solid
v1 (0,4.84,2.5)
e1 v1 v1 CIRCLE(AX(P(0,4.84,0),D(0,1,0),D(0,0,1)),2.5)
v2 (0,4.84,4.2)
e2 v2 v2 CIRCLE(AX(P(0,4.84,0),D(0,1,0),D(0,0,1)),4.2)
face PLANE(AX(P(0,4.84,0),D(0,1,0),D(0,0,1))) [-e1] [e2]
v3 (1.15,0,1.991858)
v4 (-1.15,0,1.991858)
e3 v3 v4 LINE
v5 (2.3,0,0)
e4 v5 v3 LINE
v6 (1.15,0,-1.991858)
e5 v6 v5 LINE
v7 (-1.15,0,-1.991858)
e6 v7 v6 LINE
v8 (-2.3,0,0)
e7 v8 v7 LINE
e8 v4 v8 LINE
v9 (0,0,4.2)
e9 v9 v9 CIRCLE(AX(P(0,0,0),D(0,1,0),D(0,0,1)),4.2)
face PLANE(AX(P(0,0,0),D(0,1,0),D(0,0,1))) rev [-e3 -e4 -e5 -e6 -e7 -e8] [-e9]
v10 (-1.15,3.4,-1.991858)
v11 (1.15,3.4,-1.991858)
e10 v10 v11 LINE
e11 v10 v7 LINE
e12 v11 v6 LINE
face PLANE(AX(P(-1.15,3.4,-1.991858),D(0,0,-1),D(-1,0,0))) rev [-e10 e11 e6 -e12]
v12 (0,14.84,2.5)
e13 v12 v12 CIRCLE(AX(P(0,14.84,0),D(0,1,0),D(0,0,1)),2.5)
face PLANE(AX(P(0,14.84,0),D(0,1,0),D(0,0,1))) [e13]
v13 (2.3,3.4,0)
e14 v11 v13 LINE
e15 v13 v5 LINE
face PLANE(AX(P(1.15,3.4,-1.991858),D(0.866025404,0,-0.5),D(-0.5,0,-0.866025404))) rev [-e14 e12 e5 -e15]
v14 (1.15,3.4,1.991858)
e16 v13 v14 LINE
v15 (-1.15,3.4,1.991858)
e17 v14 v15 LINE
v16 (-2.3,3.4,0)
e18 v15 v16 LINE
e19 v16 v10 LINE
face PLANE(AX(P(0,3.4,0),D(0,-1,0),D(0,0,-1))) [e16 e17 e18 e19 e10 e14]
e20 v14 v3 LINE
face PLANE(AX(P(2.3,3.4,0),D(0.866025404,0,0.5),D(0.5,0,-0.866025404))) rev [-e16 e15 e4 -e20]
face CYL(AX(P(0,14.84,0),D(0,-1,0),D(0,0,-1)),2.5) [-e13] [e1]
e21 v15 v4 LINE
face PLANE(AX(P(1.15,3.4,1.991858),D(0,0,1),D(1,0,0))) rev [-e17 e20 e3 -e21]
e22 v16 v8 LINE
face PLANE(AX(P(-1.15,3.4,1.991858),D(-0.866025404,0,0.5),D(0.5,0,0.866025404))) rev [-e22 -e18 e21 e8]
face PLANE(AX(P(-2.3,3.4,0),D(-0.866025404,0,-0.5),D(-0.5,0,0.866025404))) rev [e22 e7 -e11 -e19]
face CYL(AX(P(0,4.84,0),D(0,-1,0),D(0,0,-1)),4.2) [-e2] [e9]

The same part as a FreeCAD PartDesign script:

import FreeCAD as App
import Part
import Sketcher
Q = App.Units.Quantity

doc = App.newDocument("Part")
body = doc.addObject("PartDesign::Body", "Body")

sketch1 = doc.addObject("Sketcher::SketchObject", "Sketch")
body.addObject(sketch1)
sketch1.AttachmentSupport = (doc.XZ_Plane, [""])
sketch1.MapMode = "FlatFace"
sketch1.addGeometry(Part.Circle(App.Vector(0, 0, 0), App.Vector(0, 0, 1), 4.2), False)
sketch1.addConstraint([
    Sketcher.Constraint("Coincident", 0, 3, -1, 1),
    Sketcher.Constraint("Diameter", 0, 8.4),
])
pad1 = doc.addObject("PartDesign::Pad", "Pad")
body.addObject(pad1)
pad1.Profile = sketch1
pad1.Length = 4.84
pad1.Reversed = True

sketch2 = doc.addObject("Sketcher::SketchObject", "Sketch001")
body.addObject(sketch2)
sketch2.AttachmentSupport = (doc.XZ_Plane, [""])
sketch2.MapMode = "FlatFace"
sketch2.AttachmentOffset = App.Placement(App.Vector(0, 0, -4.84), App.Rotation())
sketch2.addGeometry(Part.Circle(App.Vector(0, 0, 0), App.Vector(0, 0, 1), 2.5), False)
sketch2.addConstraint([
    Sketcher.Constraint("Coincident", 0, 3, -1, 1),
    Sketcher.Constraint("Diameter", 0, 5.0),
])
pad2 = doc.addObject("PartDesign::Pad", "Pad001")
body.addObject(pad2)
pad2.Profile = sketch2
pad2.Length = 10
pad2.Reversed = True

sketch3 = doc.addObject("Sketcher::SketchObject", "Sketch002")
body.addObject(sketch3)
sketch3.AttachmentSupport = (doc.XZ_Plane, [""])
sketch3.MapMode = "FlatFace"
sketch3.addGeometry([
    Part.LineSegment(App.Vector(2.3, 0, 0), App.Vector(1.1, 2, 0)),
    Part.LineSegment(App.Vector(1.1, 2, 0), App.Vector(-1.1, 2, 0)),
    Part.LineSegment(App.Vector(-1.1, 2, 0), App.Vector(-2.3, 0, 0)),
    Part.LineSegment(App.Vector(-2.3, 0, 0), App.Vector(-1.1, -2, 0)),
    Part.LineSegment(App.Vector(-1.1, -2, 0), App.Vector(1.1, -2, 0)),
    Part.LineSegment(App.Vector(1.1, -2, 0), App.Vector(2.3, 0, 0)),
], False)
sketch3.addConstraint([
    Sketcher.Constraint("Coincident", 0, 2, 1, 1),
    Sketcher.Constraint("Coincident", 1, 2, 2, 1),
    Sketcher.Constraint("Coincident", 2, 2, 3, 1),
    Sketcher.Constraint("Coincident", 3, 2, 4, 1),
    Sketcher.Constraint("Coincident", 4, 2, 5, 1),
    Sketcher.Constraint("Coincident", 5, 2, 0, 1),
    Sketcher.Constraint("Horizontal", 1),
    Sketcher.Constraint("Horizontal", 4),
    Sketcher.Constraint("Symmetric", 0, 2, 3, 2, -1, 1),
    Sketcher.Constraint("Symmetric", 2, 2, 5, 2, -1, 1),
    Sketcher.Constraint("PointOnObject", 2, 2, -1),
    Sketcher.Constraint("Parallel", 2, 5),
    Sketcher.Constraint("Vertical", 1, 2, 3, 2),
    Sketcher.Constraint("Angle", 0, Q("120 deg")),
    Sketcher.Constraint("DistanceX", 1, 2, 1, 1, 2.3),
    Sketcher.Constraint("Distance", 0, 2.3),
])
pocket1 = doc.addObject("PartDesign::Pocket", "Pocket")
body.addObject(pocket1)
pocket1.Profile = sketch3
pocket1.Length = 3.4

doc.recompute()
